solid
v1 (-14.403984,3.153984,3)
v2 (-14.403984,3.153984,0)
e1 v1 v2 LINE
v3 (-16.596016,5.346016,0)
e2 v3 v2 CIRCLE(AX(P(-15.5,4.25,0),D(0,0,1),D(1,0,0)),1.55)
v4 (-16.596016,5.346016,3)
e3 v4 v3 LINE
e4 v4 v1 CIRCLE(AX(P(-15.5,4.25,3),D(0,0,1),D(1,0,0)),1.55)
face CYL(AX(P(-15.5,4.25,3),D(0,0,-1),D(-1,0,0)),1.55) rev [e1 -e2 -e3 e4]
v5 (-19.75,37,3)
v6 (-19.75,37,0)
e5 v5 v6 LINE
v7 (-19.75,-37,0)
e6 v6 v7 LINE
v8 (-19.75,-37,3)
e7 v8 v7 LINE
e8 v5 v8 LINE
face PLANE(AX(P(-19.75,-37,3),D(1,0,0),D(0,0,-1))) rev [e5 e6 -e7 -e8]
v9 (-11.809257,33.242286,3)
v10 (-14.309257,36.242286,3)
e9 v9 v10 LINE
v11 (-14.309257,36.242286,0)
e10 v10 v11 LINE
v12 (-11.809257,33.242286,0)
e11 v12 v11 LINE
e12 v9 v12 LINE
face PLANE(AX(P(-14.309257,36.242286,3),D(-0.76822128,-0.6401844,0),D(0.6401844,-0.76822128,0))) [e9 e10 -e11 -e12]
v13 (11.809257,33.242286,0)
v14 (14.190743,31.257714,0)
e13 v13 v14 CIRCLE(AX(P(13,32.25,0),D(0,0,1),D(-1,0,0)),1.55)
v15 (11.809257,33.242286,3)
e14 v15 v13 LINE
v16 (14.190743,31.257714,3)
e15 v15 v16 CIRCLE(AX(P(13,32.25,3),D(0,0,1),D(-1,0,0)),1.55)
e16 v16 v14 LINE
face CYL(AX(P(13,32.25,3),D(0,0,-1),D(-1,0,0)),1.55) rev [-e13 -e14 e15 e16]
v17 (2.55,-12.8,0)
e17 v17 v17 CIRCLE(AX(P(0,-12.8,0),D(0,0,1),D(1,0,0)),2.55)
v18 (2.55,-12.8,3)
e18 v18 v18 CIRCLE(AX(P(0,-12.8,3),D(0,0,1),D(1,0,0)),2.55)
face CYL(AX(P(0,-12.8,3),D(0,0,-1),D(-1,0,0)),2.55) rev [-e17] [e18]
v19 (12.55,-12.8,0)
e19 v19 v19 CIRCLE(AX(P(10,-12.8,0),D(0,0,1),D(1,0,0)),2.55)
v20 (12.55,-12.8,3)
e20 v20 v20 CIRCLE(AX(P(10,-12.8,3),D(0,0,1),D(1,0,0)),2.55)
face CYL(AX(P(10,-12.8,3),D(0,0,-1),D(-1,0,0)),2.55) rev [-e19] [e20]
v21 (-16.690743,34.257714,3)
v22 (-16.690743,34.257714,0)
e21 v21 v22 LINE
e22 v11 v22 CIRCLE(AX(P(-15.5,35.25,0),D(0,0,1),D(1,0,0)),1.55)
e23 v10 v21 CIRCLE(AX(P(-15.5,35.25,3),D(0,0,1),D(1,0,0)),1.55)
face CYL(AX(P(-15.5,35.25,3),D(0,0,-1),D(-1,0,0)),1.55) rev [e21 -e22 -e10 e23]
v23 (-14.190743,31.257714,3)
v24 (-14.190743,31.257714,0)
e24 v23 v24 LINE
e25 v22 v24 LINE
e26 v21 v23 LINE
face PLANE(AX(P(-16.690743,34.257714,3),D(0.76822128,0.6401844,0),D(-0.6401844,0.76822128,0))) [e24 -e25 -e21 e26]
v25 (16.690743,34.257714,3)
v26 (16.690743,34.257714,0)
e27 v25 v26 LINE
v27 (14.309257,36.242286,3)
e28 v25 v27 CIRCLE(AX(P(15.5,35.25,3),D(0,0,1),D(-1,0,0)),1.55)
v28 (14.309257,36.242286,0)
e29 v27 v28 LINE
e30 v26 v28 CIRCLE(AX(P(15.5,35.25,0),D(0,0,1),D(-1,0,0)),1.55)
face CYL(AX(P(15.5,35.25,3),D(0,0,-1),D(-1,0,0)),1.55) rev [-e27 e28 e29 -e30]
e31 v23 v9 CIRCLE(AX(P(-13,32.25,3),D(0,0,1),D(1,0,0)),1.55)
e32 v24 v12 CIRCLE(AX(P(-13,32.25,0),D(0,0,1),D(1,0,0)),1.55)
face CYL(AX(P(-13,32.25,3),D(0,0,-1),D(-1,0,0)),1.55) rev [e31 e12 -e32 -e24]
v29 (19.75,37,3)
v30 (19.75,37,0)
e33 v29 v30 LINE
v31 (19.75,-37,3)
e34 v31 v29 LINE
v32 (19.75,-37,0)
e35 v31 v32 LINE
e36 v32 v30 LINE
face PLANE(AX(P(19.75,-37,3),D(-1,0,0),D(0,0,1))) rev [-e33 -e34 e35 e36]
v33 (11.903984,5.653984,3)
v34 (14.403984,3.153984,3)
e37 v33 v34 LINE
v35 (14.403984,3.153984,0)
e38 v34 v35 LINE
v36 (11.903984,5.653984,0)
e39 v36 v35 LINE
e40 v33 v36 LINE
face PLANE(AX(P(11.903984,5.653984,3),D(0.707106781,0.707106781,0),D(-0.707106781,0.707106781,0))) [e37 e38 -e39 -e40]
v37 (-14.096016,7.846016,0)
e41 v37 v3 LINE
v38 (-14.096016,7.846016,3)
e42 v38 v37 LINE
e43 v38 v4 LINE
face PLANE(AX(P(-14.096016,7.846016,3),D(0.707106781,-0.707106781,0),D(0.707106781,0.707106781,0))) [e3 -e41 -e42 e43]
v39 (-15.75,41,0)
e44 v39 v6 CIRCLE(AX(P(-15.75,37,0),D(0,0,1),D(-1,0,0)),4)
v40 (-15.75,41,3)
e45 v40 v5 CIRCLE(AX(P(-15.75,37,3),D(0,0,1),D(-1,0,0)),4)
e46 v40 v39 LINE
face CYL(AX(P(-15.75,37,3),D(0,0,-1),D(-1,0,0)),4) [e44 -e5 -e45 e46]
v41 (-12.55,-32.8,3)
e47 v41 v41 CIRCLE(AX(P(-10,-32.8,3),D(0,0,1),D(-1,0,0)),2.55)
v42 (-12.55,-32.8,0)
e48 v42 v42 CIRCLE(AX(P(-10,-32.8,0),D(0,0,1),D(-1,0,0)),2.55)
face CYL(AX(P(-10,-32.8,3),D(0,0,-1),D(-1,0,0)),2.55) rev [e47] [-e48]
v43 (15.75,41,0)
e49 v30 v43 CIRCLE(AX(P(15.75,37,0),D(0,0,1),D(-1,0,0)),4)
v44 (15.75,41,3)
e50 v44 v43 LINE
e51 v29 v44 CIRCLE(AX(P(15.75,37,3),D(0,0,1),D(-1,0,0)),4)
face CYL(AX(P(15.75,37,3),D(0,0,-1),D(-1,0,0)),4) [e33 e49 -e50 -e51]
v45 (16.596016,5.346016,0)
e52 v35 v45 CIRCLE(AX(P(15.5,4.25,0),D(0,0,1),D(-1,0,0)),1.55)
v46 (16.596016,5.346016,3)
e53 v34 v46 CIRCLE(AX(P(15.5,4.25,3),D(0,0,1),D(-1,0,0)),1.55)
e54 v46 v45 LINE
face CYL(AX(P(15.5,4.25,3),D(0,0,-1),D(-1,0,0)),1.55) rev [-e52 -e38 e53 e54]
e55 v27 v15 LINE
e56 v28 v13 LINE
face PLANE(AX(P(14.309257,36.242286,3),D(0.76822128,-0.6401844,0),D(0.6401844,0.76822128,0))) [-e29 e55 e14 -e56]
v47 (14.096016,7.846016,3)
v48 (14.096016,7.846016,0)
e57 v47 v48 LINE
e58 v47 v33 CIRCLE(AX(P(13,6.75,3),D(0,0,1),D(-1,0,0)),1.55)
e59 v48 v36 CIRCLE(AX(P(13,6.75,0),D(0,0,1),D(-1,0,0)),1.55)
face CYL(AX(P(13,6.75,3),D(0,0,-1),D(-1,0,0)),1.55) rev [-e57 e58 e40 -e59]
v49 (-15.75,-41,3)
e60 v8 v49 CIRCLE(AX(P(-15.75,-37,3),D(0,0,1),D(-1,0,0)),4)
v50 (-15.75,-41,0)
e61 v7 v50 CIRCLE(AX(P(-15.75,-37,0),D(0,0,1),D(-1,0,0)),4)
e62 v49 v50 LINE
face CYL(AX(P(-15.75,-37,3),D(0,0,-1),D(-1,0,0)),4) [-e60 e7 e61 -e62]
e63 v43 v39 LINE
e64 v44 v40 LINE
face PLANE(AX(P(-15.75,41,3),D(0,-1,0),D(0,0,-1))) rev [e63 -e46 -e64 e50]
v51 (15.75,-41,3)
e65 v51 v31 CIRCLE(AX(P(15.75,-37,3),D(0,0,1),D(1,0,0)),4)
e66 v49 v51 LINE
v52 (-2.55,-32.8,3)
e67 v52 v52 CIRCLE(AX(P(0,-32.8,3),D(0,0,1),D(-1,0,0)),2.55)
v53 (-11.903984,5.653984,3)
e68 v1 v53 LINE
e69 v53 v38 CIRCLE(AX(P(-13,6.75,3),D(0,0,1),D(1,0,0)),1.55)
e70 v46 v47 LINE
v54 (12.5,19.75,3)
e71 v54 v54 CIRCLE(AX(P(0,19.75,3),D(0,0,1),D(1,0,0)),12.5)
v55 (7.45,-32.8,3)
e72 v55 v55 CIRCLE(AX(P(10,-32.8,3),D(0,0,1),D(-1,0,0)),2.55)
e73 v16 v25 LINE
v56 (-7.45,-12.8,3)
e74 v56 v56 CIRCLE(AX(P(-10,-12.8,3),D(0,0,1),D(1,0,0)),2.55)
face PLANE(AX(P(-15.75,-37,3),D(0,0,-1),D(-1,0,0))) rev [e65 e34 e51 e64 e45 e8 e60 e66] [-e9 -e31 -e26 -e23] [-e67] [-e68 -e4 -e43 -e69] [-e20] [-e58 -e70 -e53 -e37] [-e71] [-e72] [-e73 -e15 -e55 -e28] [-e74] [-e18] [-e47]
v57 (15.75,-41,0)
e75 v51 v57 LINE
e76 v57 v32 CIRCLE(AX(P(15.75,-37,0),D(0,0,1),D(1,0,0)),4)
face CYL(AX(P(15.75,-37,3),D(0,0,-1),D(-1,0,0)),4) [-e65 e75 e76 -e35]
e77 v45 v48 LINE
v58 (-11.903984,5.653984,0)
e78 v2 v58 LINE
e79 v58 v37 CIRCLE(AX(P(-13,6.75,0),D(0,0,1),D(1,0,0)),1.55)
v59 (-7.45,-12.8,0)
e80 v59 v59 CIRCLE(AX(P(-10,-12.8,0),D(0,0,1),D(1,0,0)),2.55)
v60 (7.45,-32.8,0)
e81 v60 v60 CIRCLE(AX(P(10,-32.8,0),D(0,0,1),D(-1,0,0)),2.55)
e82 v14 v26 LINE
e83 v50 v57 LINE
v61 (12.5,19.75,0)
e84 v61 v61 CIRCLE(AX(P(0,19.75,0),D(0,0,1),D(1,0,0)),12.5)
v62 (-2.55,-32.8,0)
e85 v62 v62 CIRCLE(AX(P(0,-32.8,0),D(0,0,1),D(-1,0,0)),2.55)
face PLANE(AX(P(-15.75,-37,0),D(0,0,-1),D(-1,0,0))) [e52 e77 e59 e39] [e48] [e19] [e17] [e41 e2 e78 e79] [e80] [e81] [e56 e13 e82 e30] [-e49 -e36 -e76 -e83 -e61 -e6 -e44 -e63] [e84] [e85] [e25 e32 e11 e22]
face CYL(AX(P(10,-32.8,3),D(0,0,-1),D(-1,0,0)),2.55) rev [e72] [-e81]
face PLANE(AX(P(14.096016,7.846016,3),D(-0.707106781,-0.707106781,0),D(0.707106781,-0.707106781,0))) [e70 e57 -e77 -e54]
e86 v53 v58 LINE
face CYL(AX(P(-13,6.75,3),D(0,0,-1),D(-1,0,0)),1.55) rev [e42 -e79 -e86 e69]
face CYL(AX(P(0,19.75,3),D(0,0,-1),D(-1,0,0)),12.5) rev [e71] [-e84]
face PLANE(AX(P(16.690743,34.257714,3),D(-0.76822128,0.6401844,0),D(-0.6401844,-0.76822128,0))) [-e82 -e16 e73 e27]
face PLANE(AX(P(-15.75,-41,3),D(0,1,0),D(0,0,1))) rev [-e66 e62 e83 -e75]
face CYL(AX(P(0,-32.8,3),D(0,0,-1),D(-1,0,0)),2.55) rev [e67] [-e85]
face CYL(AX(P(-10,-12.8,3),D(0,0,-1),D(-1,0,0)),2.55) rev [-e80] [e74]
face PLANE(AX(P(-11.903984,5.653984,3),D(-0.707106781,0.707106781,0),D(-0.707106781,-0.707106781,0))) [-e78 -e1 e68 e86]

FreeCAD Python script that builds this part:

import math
import FreeCAD as App
import Part
import Sketcher

doc = App.newDocument("Part")
body = doc.addObject("PartDesign::Body", "Body")

# Sketch on XY plane
sketch1 = doc.addObject("Sketcher::SketchObject", "Sketch")
body.addObject(sketch1)
sketch1.AttachmentSupport = (doc.XY_Plane, [""])
sketch1.MapMode = "FlatFace"
sketch1.addGeometry([
    Part.LineSegment(App.Vector(-15.8, -41, 0), App.Vector(15.8, -41, 0)),  # 0
    Part.ArcOfCircle(Part.Circle(App.Vector(15.8, -37, 0), App.Vector(0, 0, 1), 4), math.radians(-90), math.radians(0)),  # 1
    Part.LineSegment(App.Vector(19.8, -37, 0), App.Vector(19.8, 37, 0)),  # 2
    Part.ArcOfCircle(Part.Circle(App.Vector(15.8, 37, 0), App.Vector(0, 0, 1), 4), math.radians(0), math.radians(90)),  # 3
    Part.LineSegment(App.Vector(15.8, 41, 0), App.Vector(-15.8, 41, 0)),  # 4
    Part.ArcOfCircle(Part.Circle(App.Vector(-15.8, 37, 0), App.Vector(0, 0, 1), 4), math.radians(90), math.radians(180)),  # 5
    Part.LineSegment(App.Vector(-19.8, 37, 0), App.Vector(-19.8, -37, 0)),  # 6
    Part.ArcOfCircle(Part.Circle(App.Vector(-15.8, -37, 0), App.Vector(0, 0, 1), 4), math.radians(180), math.radians(270)),  # 7
    Part.Circle(App.Vector(-10, -32.8, 0), App.Vector(0, 0, 1), 2.5),  # 8
    Part.Circle(App.Vector(-10, -12.8, 0), App.Vector(0, 0, 1), 2.5),  # 9
    Part.Circle(App.Vector(0, -32.8, 0), App.Vector(0, 0, 1), 2.5),  # 10
    Part.Circle(App.Vector(10, -32.8, 0), App.Vector(0, 0, 1), 2.5),  # 11
    Part.Circle(App.Vector(0, -12.8, 0), App.Vector(0, 0, 1), 2.5),  # 12
    Part.Circle(App.Vector(10, -12.8, 0), App.Vector(0, 0, 1), 2.5),  # 13
    Part.ArcOfCircle(Part.Circle(App.Vector(-13, 6.8, 0), App.Vector(0, 0, 1), 1.6), math.radians(-45), math.radians(135)),  # 14
    Part.LineSegment(App.Vector(-11.9, 5.7, 0), App.Vector(-14.4, 3.2, 0)),  # 15
    Part.ArcOfCircle(Part.Circle(App.Vector(-15.5, 4.2, 0), App.Vector(0, 0, 1), 1.6), math.radians(135), math.radians(315)),  # 16
    Part.LineSegment(App.Vector(-16.6, 5.3, 0), App.Vector(-14.1, 7.8, 0)),  # 17
    Part.ArcOfCircle(Part.Circle(App.Vector(-15.5, 35.2, 0), App.Vector(0, 0, 1), 1.5), math.radians(40), math.radians(220)),  # 18
    Part.LineSegment(App.Vector(-14.3, 36.2, 0), App.Vector(-11.8, 33.2, 0)),  # 19
    Part.ArcOfCircle(Part.Circle(App.Vector(-13, 32.2, 0), App.Vector(0, 0, 1), 1.5), math.radians(-140), math.radians(40)),  # 20
    Part.LineSegment(App.Vector(-14.2, 31.3, 0), App.Vector(-16.7, 34.3, 0)),  # 21
    Part.LineSegment(App.Vector(14.4, 3.2, 0), App.Vector(11.9, 5.7, 0)),  # 22
    Part.ArcOfCircle(Part.Circle(App.Vector(13, 6.8, 0), App.Vector(0, 0, 1), 1.6), math.radians(45), math.radians(225)),  # 23
    Part.LineSegment(App.Vector(14.1, 7.8, 0), App.Vector(16.6, 5.3, 0)),  # 24
    Part.ArcOfCircle(Part.Circle(App.Vector(15.5, 4.2, 0), App.Vector(0, 0, 1), 1.6), math.radians(-135), math.radians(45)),  # 25
    Part.Circle(App.Vector(0, 19.8, 0), App.Vector(0, 0, 1), 12.5),  # 26
    Part.LineSegment(App.Vector(11.8, 33.2, 0), App.Vector(14.3, 36.2, 0)),  # 27
    Part.ArcOfCircle(Part.Circle(App.Vector(15.5, 35.2, 0), App.Vector(0, 0, 1), 1.5), math.radians(-40), math.radians(140)),  # 28
    Part.LineSegment(App.Vector(16.7, 34.3, 0), App.Vector(14.2, 31.3, 0)),  # 29
    Part.ArcOfCircle(Part.Circle(App.Vector(13, 32.2, 0), App.Vector(0, 0, 1), 1.5), math.radians(140), math.radians(320)),  # 30
], False)
sketch1.addConstraint([
    Sketcher.Constraint("Tangent", 0, 2, 1, 1),
    Sketcher.Constraint("Tangent", 1, 2, 2, 1),
    Sketcher.Constraint("Tangent", 2, 2, 3, 1),
    Sketcher.Constraint("Tangent", 3, 2, 4, 1),
    Sketcher.Constraint("Tangent", 4, 2, 5, 1),
    Sketcher.Constraint("Tangent", 5, 2, 6, 1),
    Sketcher.Constraint("Tangent", 6, 2, 7, 1),
    Sketcher.Constraint("Tangent", 7, 2, 0, 1),
    Sketcher.Constraint("Tangent", 14, 1, 15, 1),
    Sketcher.Constraint("Tangent", 15, 2, 16, 2),
    Sketcher.Constraint("Tangent", 16, 1, 17, 1),
    Sketcher.Constraint("Tangent", 17, 2, 14, 2),
    Sketcher.Constraint("Tangent", 18, 1, 19, 1),
    Sketcher.Constraint("Tangent", 19, 2, 20, 2),
    Sketcher.Constraint("Tangent", 20, 1, 21, 1),
    Sketcher.Constraint("Tangent", 21, 2, 18, 2),
    Sketcher.Constraint("Tangent", 22, 2, 23, 2),
    Sketcher.Constraint("Tangent", 23, 1, 24, 1),
    Sketcher.Constraint("Tangent", 24, 2, 25, 2),
    Sketcher.Constraint("Tangent", 25, 1, 22, 1),
    Sketcher.Constraint("Tangent", 27, 2, 28, 2),
    Sketcher.Constraint("Tangent", 28, 1, 29, 1),
    Sketcher.Constraint("Tangent", 29, 2, 30, 2),
    Sketcher.Constraint("Tangent", 30, 1, 27, 1),
    Sketcher.Constraint("Horizontal", 0),
    Sketcher.Constraint("Vertical", 2),
    Sketcher.Constraint("Horizontal", 4),
    Sketcher.Constraint("Vertical", 6),
    Sketcher.Constraint("Equal", 1, 3),
    Sketcher.Constraint("Equal", 3, 5),
    Sketcher.Constraint("Equal", 5, 7),
    Sketcher.Constraint("Equal", 8, 9),
    Sketcher.Constraint("Equal", 9, 10),
    Sketcher.Constraint("Equal", 10, 11),
    Sketcher.Constraint("Equal", 11, 12),
    Sketcher.Constraint("Equal", 12, 13),
    Sketcher.Constraint("Equal", 14, 16),
    Sketcher.Constraint("Equal", 16, 18),
    Sketcher.Constraint("Equal", 18, 20),
    Sketcher.Constraint("Equal", 20, 23),
    Sketcher.Constraint("Equal", 23, 25),
    Sketcher.Constraint("Equal", 25, 28),
    Sketcher.Constraint("Equal", 28, 30),
    Sketcher.Constraint("Symmetric", 1, 3, 5, 3, -1, 1),
    Sketcher.Constraint("Symmetric", 8, 3, 11, 3, -2),
    Sketcher.Constraint("Symmetric", 9, 3, 13, 3, -2),
    Sketcher.Constraint("Symmetric", 14, 3, 23, 3, -2),
    Sketcher.Constraint("Symmetric", 16, 3, 25, 3, -2),
    Sketcher.Constraint("Symmetric", 18, 3, 28, 3, -2),
    Sketcher.Constraint("Symmetric", 20, 3, 30, 3, -2),
    Sketcher.Constraint("PointOnObject", 10, 3, -2),
    Sketcher.Constraint("PointOnObject", 12, 3, -2),
    Sketcher.Constraint("PointOnObject", 26, 3, -2),
    Sketcher.Constraint("Perpendicular", 17, 22),
    Sketcher.Constraint("Horizontal", 8, 3, 10, 3),
    Sketcher.Constraint("Horizontal", 9, 3, 12, 3),
    Sketcher.Constraint("Vertical", 8, 3, 9, 3),
    Sketcher.Constraint("Vertical", 16, 3, 18, 3),
    Sketcher.Constraint("Vertical", 14, 3, 20, 3),
    Sketcher.Constraint("Diameter", 26, 25.0),
    Sketcher.Constraint("Radius", 1, 4.0),
    Sketcher.Constraint("Diameter", 8, 5.1),
    Sketcher.Constraint("DistanceY", 2, 1, 2, 2, 74.0),
    Sketcher.Constraint("Radius", 14, 1.55),
    Sketcher.Constraint("DistanceX", 0, 1, 0, 2, 31.5),
    Sketcher.Constraint("DistanceX", 8, 3, -1, 1, 10.0),
    Sketcher.Constraint("DistanceX", 14, 3, -1, 1, 13.0),
    Sketcher.Constraint("DistanceY", 8, 3, 9, 3, 20.0),
    Sketcher.Constraint("DistanceY", 16, 3, 18, 3, 31.0),
    Sketcher.Constraint("DistanceY", 20, 3, 18, 3, 3.0),
    Sketcher.Constraint("DistanceY", 14, 3, 26, 3, 13.0),
    Sketcher.Constraint("DistanceX", 18, 3, 28, 3, 31.0),
    Sketcher.Constraint("DistanceY", 8, 3, -1, 1, 32.8),
    Sketcher.Constraint("DistanceY", -1, 1, 14, 3, 6.75),
])
pad1 = doc.addObject("PartDesign::Pad", "Pad")
body.addObject(pad1)
pad1.Profile = sketch1
pad1.Length = 3

doc.recompute()
